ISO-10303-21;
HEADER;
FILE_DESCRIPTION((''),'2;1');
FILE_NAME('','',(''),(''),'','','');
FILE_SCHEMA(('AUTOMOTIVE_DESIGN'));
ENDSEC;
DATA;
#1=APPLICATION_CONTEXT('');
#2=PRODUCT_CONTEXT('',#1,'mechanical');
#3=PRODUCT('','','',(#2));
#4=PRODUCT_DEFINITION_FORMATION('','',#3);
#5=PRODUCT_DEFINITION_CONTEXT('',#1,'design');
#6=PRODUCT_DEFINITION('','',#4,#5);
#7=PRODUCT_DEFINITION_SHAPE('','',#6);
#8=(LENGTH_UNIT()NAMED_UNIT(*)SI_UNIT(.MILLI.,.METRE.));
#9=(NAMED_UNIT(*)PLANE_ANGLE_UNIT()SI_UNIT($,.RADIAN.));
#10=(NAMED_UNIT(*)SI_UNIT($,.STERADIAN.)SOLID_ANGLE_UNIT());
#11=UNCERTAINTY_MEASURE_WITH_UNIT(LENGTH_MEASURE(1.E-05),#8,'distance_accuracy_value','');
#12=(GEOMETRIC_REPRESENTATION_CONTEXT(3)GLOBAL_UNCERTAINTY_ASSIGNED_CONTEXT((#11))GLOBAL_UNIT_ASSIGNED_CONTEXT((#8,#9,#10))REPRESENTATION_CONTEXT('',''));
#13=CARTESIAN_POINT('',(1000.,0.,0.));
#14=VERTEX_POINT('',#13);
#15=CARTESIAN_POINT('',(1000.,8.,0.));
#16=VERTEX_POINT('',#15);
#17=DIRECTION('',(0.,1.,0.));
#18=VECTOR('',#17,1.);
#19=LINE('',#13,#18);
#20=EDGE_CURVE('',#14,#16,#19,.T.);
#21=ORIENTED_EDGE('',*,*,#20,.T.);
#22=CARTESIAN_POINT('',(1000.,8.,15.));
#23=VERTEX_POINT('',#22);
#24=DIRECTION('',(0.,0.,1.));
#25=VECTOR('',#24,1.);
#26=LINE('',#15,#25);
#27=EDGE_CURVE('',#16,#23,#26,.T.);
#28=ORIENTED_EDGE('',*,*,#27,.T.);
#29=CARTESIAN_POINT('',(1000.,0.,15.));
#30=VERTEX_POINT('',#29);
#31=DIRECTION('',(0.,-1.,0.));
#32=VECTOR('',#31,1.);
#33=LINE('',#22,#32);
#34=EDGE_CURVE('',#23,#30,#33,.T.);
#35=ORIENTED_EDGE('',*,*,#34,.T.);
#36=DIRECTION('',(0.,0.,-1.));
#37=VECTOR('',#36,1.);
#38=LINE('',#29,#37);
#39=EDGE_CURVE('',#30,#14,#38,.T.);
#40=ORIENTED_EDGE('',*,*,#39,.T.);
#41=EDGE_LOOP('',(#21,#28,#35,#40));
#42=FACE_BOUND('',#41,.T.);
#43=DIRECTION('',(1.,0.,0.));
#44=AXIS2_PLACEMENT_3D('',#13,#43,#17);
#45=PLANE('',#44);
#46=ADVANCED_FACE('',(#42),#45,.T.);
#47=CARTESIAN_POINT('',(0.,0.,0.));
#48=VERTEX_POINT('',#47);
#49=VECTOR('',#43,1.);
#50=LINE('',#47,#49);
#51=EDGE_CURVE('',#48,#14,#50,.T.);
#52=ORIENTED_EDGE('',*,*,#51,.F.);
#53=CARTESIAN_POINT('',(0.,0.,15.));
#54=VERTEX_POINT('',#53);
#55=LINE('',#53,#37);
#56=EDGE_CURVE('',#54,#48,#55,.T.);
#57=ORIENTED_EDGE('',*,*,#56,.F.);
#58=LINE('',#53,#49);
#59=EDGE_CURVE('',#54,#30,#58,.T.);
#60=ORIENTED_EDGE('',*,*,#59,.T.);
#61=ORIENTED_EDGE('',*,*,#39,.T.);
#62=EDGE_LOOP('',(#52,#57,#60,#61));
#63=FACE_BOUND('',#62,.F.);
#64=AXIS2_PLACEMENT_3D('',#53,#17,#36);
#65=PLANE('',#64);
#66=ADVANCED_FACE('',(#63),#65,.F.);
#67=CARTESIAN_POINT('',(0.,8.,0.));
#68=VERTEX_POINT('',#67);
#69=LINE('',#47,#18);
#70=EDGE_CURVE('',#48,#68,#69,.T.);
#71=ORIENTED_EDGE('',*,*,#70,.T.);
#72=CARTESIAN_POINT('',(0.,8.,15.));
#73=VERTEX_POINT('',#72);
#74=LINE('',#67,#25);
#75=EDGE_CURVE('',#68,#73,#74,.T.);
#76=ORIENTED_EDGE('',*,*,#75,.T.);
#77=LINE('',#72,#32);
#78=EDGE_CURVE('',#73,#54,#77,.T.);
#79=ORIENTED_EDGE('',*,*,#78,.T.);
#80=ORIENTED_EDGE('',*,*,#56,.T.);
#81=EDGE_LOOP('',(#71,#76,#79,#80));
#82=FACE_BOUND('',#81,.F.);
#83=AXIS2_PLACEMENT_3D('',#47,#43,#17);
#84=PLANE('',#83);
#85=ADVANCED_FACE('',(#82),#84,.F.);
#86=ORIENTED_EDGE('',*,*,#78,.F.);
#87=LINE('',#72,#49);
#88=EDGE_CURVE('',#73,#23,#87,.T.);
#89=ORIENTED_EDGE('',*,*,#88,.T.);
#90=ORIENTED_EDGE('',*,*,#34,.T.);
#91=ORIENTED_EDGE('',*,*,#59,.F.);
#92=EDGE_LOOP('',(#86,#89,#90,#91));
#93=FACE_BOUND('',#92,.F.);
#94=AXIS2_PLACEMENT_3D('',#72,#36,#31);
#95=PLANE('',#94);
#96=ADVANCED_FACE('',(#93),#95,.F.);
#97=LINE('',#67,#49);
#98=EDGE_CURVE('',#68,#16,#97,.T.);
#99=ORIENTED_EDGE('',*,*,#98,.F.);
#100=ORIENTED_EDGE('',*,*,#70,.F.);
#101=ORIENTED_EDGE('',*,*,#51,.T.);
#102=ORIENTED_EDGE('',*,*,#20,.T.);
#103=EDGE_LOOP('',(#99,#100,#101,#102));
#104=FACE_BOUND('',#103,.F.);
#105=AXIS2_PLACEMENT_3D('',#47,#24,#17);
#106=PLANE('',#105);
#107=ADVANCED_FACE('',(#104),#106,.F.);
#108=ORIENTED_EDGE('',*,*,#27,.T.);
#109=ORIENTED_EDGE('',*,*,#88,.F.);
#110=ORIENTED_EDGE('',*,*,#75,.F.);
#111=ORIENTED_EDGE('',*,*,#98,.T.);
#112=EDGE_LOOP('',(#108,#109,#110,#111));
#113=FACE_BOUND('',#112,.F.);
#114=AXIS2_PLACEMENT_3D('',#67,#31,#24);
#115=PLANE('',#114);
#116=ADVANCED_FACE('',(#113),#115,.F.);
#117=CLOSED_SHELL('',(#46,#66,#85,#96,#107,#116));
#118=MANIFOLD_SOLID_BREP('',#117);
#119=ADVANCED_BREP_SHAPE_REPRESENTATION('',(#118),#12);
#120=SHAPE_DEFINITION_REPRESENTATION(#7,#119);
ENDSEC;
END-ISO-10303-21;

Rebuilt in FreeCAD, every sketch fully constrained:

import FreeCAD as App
import Part
import Sketcher
from FreeCAD import Vector


def add_polygon(sketch, points):
    """Adds a closed chain of lines whose ends are joined by coincident constraints."""
    first, n = sketch.GeometryCount, len(points)
    for a, b in zip(points, points[1:] + points[:1]):
        sketch.addGeometry(Part.LineSegment(App.Vector(*a, 0), App.Vector(*b, 0)), False)
    for i in range(n):
        sketch.addConstraint(Sketcher.Constraint("Coincident", first + i, 2, first + (i + 1) % n, 1))

doc = App.newDocument("Part")
body = doc.addObject("PartDesign::Body", "Body")

sketch1 = body.newObject("Sketcher::SketchObject", "Sketch")
sketch1.AttachmentSupport = (doc.getObject("YZ_Plane"), [""])
sketch1.MapMode = "FlatFace"
add_polygon(sketch1, [(0, 15), (0, 0), (8, 0), (8, 15)])
sketch1.addConstraint([
    Sketcher.Constraint("Vertical", 0),
    Sketcher.Constraint("Horizontal", 1),
    Sketcher.Constraint("Vertical", 2),
    Sketcher.Constraint("Horizontal", 3),
    Sketcher.Constraint("Coincident", 0, 2, -1, 1),
    Sketcher.Constraint("DistanceX", 1, 1, 1, 2, 8.0),
    Sketcher.Constraint("DistanceY", 0, 2, 0, 1, 15.0),
])
pad1 = body.newObject("PartDesign::Pad", "Pad")
pad1.Profile = sketch1
pad1.Length = 1000

doc.recompute()
